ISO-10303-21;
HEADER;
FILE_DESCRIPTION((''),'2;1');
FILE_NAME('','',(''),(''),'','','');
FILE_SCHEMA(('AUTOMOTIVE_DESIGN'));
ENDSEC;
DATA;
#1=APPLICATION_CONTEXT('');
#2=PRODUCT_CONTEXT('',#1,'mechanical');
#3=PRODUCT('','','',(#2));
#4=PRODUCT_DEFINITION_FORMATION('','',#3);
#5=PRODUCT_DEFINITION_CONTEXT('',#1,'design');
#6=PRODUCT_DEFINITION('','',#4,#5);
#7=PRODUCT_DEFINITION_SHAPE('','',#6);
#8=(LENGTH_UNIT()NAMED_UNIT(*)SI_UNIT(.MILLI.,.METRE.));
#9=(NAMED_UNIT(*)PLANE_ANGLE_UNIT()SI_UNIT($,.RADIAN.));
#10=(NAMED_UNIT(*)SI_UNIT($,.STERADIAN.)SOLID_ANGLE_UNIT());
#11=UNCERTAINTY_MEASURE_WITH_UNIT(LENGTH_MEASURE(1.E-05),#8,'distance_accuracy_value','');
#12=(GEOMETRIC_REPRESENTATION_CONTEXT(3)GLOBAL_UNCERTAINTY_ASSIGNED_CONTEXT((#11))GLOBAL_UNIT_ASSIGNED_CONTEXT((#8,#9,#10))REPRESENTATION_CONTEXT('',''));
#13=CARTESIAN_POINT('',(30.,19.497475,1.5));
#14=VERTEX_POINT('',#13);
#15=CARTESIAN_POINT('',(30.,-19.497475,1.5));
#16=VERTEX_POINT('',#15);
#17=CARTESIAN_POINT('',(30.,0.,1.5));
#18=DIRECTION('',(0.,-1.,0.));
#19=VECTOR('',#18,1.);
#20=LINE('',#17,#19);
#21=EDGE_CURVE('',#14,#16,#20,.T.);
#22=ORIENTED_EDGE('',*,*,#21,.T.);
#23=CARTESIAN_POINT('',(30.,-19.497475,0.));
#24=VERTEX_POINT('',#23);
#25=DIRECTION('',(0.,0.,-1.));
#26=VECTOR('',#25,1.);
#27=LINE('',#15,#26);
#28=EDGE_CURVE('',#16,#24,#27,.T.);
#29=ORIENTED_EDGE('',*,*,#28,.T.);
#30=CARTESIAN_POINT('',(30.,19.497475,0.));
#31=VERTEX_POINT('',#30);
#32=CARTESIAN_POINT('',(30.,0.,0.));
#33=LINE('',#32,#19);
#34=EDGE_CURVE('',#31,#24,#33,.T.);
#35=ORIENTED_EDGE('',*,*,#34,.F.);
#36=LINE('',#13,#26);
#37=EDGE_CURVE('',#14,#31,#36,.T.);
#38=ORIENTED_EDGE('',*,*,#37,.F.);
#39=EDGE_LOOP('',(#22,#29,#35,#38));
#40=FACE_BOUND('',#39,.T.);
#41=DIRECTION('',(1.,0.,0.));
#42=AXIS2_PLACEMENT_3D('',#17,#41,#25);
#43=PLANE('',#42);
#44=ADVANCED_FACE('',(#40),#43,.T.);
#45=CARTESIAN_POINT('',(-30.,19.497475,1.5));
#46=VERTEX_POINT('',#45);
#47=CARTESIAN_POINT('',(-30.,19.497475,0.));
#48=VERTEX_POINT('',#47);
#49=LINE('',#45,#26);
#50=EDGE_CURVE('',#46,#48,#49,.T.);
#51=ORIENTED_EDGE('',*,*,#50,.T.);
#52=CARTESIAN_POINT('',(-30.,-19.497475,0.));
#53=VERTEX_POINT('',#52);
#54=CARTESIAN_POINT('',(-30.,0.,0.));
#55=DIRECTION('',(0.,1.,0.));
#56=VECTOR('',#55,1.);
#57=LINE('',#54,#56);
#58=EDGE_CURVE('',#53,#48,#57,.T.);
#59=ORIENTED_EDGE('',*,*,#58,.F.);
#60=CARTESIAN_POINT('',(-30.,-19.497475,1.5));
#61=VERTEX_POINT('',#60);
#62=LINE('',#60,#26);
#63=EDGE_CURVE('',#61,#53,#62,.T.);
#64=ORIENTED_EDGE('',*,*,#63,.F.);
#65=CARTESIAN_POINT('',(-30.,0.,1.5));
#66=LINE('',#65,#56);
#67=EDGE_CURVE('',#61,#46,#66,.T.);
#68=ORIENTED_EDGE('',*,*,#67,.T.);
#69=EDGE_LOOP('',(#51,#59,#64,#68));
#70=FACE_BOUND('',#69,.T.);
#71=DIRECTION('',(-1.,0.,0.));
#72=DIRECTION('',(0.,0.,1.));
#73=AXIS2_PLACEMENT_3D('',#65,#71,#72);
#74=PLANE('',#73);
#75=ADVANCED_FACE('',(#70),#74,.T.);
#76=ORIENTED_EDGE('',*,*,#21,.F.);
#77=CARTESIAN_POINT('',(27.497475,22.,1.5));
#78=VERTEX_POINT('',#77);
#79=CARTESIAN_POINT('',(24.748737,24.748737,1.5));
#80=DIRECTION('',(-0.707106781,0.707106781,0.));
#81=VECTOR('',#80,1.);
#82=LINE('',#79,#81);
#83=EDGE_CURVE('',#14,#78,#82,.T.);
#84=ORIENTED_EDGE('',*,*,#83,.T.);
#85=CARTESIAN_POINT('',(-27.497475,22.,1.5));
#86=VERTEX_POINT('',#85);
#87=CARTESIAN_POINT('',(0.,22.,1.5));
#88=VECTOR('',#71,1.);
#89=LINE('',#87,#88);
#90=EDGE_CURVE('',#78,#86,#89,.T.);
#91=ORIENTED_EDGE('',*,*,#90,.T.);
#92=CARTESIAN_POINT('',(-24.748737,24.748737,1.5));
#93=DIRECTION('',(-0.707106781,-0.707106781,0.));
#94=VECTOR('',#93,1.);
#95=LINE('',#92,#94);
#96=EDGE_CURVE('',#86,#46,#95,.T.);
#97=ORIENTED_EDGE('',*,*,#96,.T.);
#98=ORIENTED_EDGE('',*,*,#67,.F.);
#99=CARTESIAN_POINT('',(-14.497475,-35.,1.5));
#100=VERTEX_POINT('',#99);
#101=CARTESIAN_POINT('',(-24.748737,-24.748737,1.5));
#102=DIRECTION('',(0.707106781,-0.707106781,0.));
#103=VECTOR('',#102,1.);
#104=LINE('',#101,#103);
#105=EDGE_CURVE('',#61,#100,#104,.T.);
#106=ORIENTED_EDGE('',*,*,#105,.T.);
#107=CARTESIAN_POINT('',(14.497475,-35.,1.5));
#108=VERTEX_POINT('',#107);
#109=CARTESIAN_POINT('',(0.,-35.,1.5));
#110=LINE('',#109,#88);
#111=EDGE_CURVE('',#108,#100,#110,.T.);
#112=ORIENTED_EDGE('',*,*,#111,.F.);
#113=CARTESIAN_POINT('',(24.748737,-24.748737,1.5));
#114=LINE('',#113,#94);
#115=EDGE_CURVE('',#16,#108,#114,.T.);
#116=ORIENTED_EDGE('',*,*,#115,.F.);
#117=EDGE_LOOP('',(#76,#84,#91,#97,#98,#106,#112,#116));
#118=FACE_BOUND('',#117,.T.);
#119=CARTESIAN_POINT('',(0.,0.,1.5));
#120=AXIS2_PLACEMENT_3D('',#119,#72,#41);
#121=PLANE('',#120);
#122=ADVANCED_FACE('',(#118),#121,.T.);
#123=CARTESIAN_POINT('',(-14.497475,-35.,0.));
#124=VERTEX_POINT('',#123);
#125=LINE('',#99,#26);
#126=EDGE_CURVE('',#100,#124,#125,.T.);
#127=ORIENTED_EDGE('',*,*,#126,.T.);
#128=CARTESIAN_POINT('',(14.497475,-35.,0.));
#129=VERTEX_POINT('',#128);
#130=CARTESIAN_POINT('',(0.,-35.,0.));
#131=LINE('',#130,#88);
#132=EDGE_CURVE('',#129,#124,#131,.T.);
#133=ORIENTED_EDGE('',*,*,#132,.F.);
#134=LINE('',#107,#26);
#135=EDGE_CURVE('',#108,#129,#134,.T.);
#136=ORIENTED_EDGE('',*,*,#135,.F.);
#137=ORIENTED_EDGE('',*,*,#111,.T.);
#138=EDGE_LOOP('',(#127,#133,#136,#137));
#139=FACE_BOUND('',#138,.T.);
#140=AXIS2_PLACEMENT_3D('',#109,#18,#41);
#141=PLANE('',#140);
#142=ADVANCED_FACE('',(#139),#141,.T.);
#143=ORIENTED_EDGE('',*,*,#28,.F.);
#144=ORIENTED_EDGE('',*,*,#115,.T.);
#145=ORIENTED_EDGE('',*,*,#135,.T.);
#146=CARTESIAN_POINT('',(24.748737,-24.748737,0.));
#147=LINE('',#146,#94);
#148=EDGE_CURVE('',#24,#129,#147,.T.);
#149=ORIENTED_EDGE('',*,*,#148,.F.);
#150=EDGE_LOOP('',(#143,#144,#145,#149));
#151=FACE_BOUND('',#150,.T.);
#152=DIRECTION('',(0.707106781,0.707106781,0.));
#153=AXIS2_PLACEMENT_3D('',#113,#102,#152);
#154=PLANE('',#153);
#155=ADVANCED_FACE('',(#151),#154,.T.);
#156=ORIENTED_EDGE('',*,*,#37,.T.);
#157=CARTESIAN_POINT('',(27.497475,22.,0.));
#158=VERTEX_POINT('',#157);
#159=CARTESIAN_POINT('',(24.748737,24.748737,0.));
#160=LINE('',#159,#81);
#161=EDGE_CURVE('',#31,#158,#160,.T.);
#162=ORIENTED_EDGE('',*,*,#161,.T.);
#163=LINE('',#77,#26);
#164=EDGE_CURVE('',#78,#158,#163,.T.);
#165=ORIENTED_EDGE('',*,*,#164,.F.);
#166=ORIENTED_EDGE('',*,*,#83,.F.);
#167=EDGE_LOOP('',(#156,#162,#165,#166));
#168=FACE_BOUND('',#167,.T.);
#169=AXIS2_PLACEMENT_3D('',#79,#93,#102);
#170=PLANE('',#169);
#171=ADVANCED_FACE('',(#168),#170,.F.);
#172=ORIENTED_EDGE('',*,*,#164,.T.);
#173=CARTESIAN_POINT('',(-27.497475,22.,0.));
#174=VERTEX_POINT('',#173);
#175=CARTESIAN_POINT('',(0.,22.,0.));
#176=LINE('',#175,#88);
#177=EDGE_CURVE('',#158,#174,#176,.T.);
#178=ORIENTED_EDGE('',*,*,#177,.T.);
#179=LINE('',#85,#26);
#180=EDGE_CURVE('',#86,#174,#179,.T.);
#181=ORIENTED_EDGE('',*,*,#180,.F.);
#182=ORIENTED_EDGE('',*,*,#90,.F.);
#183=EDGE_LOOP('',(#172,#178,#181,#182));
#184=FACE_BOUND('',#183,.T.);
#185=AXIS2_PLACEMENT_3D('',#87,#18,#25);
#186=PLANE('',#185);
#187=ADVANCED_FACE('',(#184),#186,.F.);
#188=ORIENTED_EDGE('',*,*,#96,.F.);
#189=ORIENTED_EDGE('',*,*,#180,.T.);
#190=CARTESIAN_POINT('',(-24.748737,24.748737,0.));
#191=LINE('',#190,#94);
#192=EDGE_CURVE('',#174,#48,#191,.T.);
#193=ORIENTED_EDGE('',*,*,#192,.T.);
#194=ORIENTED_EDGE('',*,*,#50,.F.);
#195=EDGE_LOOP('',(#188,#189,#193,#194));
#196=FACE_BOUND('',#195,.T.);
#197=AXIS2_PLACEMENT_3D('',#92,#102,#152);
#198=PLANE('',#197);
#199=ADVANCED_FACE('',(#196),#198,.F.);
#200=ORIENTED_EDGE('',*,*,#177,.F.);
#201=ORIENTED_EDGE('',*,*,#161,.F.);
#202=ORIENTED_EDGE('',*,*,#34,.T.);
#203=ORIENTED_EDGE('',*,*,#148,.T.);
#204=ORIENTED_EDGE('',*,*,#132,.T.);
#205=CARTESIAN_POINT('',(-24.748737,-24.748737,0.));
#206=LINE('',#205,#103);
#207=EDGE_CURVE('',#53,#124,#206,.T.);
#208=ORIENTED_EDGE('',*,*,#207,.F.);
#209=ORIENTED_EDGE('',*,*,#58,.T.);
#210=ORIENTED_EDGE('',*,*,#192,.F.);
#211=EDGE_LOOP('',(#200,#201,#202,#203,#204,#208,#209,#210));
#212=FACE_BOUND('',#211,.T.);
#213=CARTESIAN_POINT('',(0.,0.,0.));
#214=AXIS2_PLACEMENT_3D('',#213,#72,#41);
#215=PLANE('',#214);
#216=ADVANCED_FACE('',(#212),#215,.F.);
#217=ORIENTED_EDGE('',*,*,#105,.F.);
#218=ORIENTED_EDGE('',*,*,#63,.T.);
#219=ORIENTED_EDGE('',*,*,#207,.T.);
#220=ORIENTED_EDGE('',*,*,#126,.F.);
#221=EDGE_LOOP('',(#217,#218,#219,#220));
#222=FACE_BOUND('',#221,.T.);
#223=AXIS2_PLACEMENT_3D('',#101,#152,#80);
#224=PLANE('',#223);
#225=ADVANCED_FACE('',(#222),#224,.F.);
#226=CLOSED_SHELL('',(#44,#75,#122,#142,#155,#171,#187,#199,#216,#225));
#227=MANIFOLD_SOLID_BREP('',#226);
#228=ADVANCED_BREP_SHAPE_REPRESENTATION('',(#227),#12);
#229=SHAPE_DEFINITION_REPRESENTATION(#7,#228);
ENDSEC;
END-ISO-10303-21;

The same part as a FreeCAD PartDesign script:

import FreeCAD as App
import Part
import Sketcher

V = App.Vector

doc = App.newDocument("Part")
body = doc.addObject("PartDesign::Body", "Body")

# Sketch on XY plane
sketch1 = body.newObject("Sketcher::SketchObject", "Sketch")
sketch1.AttachmentSupport = (doc.getObject("XY_Plane"), [""])
sketch1.MapMode = "FlatFace"
sketch1.addGeometry([
    Part.LineSegment(V(-27.497475, 22, 0), V(-30, 19.497475, 0)),  # 0
    Part.LineSegment(V(-30, 19.497475, 0), V(-30, -19.497475, 0)),  # 1
    Part.LineSegment(V(-30, -19.497475, 0), V(-14.497475, -35, 0)),  # 2
    Part.LineSegment(V(-14.497475, -35, 0), V(14.497475, -35, 0)),  # 3
    Part.LineSegment(V(14.497475, -35, 0), V(30, -19.497475, 0)),  # 4
    Part.LineSegment(V(30, -19.497475, 0), V(30, 19.497475, 0)),  # 5
    Part.LineSegment(V(30, 19.497475, 0), V(27.497475, 22, 0)),  # 6
    Part.LineSegment(V(27.497475, 22, 0), V(-27.497475, 22, 0)),  # 7
], False)
sketch1.addConstraint([
    Sketcher.Constraint("Coincident", 0, 2, 1, 1),
    Sketcher.Constraint("Coincident", 1, 2, 2, 1),
    Sketcher.Constraint("Coincident", 2, 2, 3, 1),
    Sketcher.Constraint("Coincident", 3, 2, 4, 1),
    Sketcher.Constraint("Coincident", 4, 2, 5, 1),
    Sketcher.Constraint("Coincident", 5, 2, 6, 1),
    Sketcher.Constraint("Coincident", 6, 2, 7, 1),
    Sketcher.Constraint("Coincident", 7, 2, 0, 1),
    Sketcher.Constraint("Vertical", 1),
    Sketcher.Constraint("Horizontal", 3),
    Sketcher.Constraint("Vertical", 5),
    Sketcher.Constraint("Horizontal", 7),
    Sketcher.Constraint("Symmetric", 0, 2, 4, 2, -1, 1),
    Sketcher.Constraint("Perpendicular", 0, 2),
    Sketcher.Constraint("Perpendicular", 2, 4),
    Sketcher.Constraint("Perpendicular", 4, 6),
    Sketcher.Constraint("Horizontal", 1, 2, 4, 2),
    Sketcher.Constraint("Horizontal", 0, 2, 5, 2),
    Sketcher.Constraint("Equal", 2, 4),
    Sketcher.Constraint("DistanceX", 0, 2, -1, 1, 30.0),
    Sketcher.Constraint("DistanceY", 2, 2, -1, 1, 35.0),
    Sketcher.Constraint("DistanceY", -1, 1, 6, 2, 22.0),
    Sketcher.Constraint("DistanceX", 3, 1, 3, 2, 28.994949),
])
pad1 = body.newObject("PartDesign::Pad", "Pad")
pad1.Profile = sketch1
pad1.Length = 1.5

doc.recompute()
